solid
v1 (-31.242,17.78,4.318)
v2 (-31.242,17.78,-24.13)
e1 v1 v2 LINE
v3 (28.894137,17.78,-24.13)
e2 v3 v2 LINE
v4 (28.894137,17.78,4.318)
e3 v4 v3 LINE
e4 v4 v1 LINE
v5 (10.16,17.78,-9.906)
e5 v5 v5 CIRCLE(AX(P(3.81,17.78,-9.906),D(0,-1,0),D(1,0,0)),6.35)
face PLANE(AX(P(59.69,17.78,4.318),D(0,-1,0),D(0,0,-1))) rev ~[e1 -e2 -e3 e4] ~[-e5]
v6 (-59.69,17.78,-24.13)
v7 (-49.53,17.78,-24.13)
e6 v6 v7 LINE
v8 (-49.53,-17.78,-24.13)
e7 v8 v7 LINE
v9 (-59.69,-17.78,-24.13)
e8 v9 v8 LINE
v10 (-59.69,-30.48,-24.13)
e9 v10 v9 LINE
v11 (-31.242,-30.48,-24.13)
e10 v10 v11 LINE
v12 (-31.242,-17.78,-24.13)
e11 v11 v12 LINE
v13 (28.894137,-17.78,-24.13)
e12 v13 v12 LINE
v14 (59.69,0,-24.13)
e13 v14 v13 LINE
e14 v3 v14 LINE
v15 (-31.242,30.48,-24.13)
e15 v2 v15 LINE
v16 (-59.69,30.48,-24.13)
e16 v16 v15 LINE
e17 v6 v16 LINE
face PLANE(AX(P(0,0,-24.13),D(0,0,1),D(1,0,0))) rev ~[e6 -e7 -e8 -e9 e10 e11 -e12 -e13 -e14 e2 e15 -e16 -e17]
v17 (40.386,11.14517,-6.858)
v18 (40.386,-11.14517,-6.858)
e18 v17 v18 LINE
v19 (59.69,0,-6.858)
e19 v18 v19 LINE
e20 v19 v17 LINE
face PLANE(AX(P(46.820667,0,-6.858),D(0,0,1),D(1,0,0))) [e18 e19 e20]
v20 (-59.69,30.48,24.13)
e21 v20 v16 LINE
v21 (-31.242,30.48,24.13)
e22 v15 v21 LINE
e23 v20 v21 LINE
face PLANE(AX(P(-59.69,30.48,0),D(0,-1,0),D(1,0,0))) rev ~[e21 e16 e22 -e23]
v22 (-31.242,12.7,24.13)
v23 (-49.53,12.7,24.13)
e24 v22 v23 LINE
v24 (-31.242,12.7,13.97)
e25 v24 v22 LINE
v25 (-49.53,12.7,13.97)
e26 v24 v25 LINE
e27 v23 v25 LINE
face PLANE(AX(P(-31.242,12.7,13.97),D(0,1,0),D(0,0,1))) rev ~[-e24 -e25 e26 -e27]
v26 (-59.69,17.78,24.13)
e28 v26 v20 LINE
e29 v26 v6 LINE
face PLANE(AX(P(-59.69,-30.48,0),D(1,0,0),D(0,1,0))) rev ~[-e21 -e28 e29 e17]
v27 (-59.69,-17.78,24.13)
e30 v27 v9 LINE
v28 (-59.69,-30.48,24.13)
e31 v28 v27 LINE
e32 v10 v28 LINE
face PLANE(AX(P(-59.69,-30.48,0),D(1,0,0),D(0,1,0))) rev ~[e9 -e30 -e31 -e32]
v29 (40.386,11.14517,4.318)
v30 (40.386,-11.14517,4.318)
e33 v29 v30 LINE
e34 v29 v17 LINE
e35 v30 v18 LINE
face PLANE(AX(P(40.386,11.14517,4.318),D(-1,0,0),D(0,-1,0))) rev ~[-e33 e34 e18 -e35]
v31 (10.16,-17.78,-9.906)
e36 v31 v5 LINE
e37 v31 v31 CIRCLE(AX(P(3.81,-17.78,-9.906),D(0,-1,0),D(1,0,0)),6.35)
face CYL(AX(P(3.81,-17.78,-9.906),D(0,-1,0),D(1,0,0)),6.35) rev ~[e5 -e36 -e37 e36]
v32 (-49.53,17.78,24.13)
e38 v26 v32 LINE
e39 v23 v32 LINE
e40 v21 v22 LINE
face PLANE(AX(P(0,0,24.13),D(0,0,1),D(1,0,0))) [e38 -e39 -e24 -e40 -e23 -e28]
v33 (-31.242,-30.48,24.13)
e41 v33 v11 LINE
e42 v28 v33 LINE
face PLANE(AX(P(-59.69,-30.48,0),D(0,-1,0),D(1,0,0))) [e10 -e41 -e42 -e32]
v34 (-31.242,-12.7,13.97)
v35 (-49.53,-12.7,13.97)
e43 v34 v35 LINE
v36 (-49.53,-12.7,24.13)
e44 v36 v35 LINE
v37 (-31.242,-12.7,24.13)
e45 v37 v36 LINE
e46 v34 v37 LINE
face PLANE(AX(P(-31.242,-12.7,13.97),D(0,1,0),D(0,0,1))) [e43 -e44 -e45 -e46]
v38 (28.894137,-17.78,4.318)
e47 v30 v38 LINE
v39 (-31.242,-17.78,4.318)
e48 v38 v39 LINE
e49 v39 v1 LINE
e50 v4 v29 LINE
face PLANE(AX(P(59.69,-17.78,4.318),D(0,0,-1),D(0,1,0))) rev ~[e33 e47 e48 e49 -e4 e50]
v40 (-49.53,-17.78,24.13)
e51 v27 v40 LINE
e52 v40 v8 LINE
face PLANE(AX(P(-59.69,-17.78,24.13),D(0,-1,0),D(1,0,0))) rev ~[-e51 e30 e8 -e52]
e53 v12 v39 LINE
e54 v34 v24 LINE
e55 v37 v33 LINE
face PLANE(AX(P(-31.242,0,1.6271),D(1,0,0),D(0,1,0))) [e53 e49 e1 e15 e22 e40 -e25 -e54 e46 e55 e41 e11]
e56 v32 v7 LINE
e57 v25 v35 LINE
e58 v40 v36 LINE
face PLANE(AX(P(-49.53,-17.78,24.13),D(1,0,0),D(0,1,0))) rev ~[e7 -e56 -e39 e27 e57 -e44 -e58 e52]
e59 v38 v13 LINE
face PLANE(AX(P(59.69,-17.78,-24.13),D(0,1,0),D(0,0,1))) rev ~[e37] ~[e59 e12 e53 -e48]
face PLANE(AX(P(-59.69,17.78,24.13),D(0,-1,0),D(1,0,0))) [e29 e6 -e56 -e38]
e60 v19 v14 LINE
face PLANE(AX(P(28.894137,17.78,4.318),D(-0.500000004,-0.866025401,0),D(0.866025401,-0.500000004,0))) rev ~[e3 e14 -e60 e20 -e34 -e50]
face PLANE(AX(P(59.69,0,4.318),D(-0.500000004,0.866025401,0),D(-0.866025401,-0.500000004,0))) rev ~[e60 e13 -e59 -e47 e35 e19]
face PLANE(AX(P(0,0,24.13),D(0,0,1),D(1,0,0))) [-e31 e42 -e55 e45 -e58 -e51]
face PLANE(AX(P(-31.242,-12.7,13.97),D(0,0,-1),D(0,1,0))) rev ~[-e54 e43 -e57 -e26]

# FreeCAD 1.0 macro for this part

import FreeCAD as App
import Part
import Sketcher
from FreeCAD import Vector
Q = App.Units.Quantity

doc = App.newDocument("Part")
params = doc.addObject("Spreadsheet::Sheet", "Params")
for row, (alias, value) in enumerate([
    ("sketch1_width", "4.7 in"),
    ("sketch1_height", "2.4 in"),
    ("pad1_length", "1.9 in"),
    ("sketch2_width", "0.5 in"),
    ("sketch2_width2", "1.4 in"),
    ("sketch2_height", "1.9 in"),
    ("sketch2_height2", "1.12 in"),
    ("pocket1_length", "3.58 in"),
    ("sketch3_width", "1 in"),
    ("sketch3_height", "0.4 in"),
    ("pocket2_length", "1.787 in"),
    ("sketch4_width", "0.4 in"),
    ("sketch4_height", "1.4 in"),
    ("pocket3_length", "2.103 in"),
    ("sketch5_height", "0.7 in"),
    ("pocket4_length", "1.37 in"),
    ("pocket5_length", "0.44 in"),
    ("sketch7_diameter", "0.5 in"),
    ("pocket6_length", "2.29 in"),
], start=1):
    params.set(f"A{row}", alias)
    params.set(f"B{row}", "=" + value)
    params.setAlias(f"B{row}", alias)

body = doc.addObject("PartDesign::Body", "Body")

# Sketch on XY plane
sketch1 = doc.addObject("Sketcher::SketchObject", "Sketch")
body.addObject(sketch1)
sketch1.AttachmentSupport = (doc.XY_Plane, [""])
sketch1.MapMode = "FlatFace"
sketch1.addGeometry([
    Part.LineSegment(Vector(-60, 30, 0), Vector(-60, -30, 0)),
    Part.LineSegment(Vector(-60, -30, 0), Vector(60, -30, 0)),
    Part.LineSegment(Vector(60, -30, 0), Vector(60, 30, 0)),
    Part.LineSegment(Vector(60, 30, 0), Vector(-60, 30, 0)),
], False)
sketch1.addConstraint([
    Sketcher.Constraint("Coincident", 0, 2, 1, 1),
    Sketcher.Constraint("Coincident", 1, 2, 2, 1),
    Sketcher.Constraint("Coincident", 2, 2, 3, 1),
    Sketcher.Constraint("Coincident", 3, 2, 0, 1),
    Sketcher.Constraint("Vertical", 0),
    Sketcher.Constraint("Horizontal", 1),
    Sketcher.Constraint("Vertical", 2),
    Sketcher.Constraint("Horizontal", 3),
    Sketcher.Constraint("Symmetric", 0, 2, 2, 2, -1, 1),
    Sketcher.Constraint("DistanceX", 1, 1, 1, 2, Q("4.7 in")),
    Sketcher.Constraint("DistanceY", 0, 2, 0, 1, Q("2.4 in")),
])
sketch1.setExpression("Constraints[9]", "Params.sketch1_width")
sketch1.setExpression("Constraints[10]", "Params.sketch1_height")
pad1 = doc.addObject("PartDesign::Pad", "Pad")
body.addObject(pad1)
pad1.Profile = sketch1
pad1.setExpression("Length", "Params.pad1_length")
pad1.Midplane = True

# Sketch on YZ plane
sketch2 = doc.addObject("Sketcher::SketchObject", "Sketch001")
body.addObject(sketch2)
sketch2.AttachmentSupport = (doc.YZ_Plane, [""])
sketch2.MapMode = "FlatFace"
sketch2.AttachmentOffset = App.Placement(Vector(0, 0, 2.35 * 25.4), App.Rotation())
sketch2.addGeometry([
    Part.LineSegment(Vector(-30, -24, 0), Vector(-18, -24, 0)),  # 0
    Part.LineSegment(Vector(-18, -24, 0), Vector(-18, 4, 0)),  # 1
    Part.LineSegment(Vector(-18, 4, 0), Vector(18, 4, 0)),  # 2
    Part.LineSegment(Vector(18, 4, 0), Vector(18, -24, 0)),  # 3
    Part.LineSegment(Vector(18, -24, 0), Vector(30, -24, 0)),  # 4
    Part.LineSegment(Vector(30, -24, 0), Vector(30, 24, 0)),  # 5
    Part.LineSegment(Vector(30, 24, 0), Vector(-30, 24, 0)),  # 6
    Part.LineSegment(Vector(-30, 24, 0), Vector(-30, -24, 0)),  # 7
], False)
sketch2.addConstraint([
    Sketcher.Constraint("Coincident", 0, 2, 1, 1),
    Sketcher.Constraint("Coincident", 1, 2, 2, 1),
    Sketcher.Constraint("Coincident", 2, 2, 3, 1),
    Sketcher.Constraint("Coincident", 3, 2, 4, 1),
    Sketcher.Constraint("Coincident", 4, 2, 5, 1),
    Sketcher.Constraint("Coincident", 5, 2, 6, 1),
    Sketcher.Constraint("Coincident", 6, 2, 7, 1),
    Sketcher.Constraint("Coincident", 7, 2, 0, 1),
    Sketcher.Constraint("Horizontal", 0),
    Sketcher.Constraint("Vertical", 1),
    Sketcher.Constraint("Horizontal", 2),
    Sketcher.Constraint("Vertical", 3),
    Sketcher.Constraint("Horizontal", 4),
    Sketcher.Constraint("Vertical", 5),
    Sketcher.Constraint("Horizontal", 6),
    Sketcher.Constraint("Vertical", 7),
    Sketcher.Constraint("Symmetric", 4, 2, 6, 2, -1, 1),
    Sketcher.Constraint("Symmetric", 0, 2, 3, 2, -2),
    Sketcher.Constraint("DistanceX", 0, 1, 0, 2, Q("0.5 in")),
    Sketcher.Constraint("DistanceX", 2, 1, 2, 2, Q("1.4 in")),
    Sketcher.Constraint("DistanceY", 5, 1, 5, 2, Q("1.9 in")),
    Sketcher.Constraint("DistanceY", 1, 1, 1, 2, Q("1.12 in")),
])
sketch2.setExpression("Constraints[18]", "Params.sketch2_width")
sketch2.setExpression("Constraints[19]", "Params.sketch2_width2")
sketch2.setExpression("Constraints[20]", "Params.sketch2_height")
sketch2.setExpression("Constraints[21]", "Params.sketch2_height2")
pocket1 = doc.addObject("PartDesign::Pocket", "Pocket")
body.addObject(pocket1)
pocket1.Profile = sketch2
pocket1.setExpression("Length", "Params.pocket1_length")

# Sketch on YZ plane
sketch3 = doc.addObject("Sketcher::SketchObject", "Sketch002")
body.addObject(sketch3)
sketch3.AttachmentSupport = (doc.YZ_Plane, [""])
sketch3.MapMode = "FlatFace"
sketch3.AttachmentOffset = App.Placement(Vector(0, 0, -1.23 * 25.4), App.Rotation())
sketch3.addGeometry([
    Part.LineSegment(Vector(-13, 24, 0), Vector(-13, 14, 0)),
    Part.LineSegment(Vector(-13, 14, 0), Vector(13, 14, 0)),
    Part.LineSegment(Vector(13, 14, 0), Vector(13, 24, 0)),
    Part.LineSegment(Vector(13, 24, 0), Vector(-13, 24, 0)),
], False)
sketch3.addConstraint([
    Sketcher.Constraint("Coincident", 0, 2, 1, 1),
    Sketcher.Constraint("Coincident", 1, 2, 2, 1),
    Sketcher.Constraint("Coincident", 2, 2, 3, 1),
    Sketcher.Constraint("Coincident", 3, 2, 0, 1),
    Sketcher.Constraint("Vertical", 0),
    Sketcher.Constraint("Horizontal", 1),
    Sketcher.Constraint("Vertical", 2),
    Sketcher.Constraint("Horizontal", 3),
    Sketcher.Constraint("DistanceX", 1, 1, 1, 2, Q("1 in")),
    Sketcher.Constraint("DistanceY", 0, 2, 0, 1, Q("0.4 in")),
    Sketcher.Constraint("DistanceX", 0, 2, -1, 1, Q("0.5 in")),
    Sketcher.Constraint("DistanceY", -1, 1, 0, 2, Q("0.55 in")),
])
sketch3.setExpression("Constraints[8]", "Params.sketch3_width")
sketch3.setExpression("Constraints[9]", "Params.sketch3_height")
pocket2 = doc.addObject("PartDesign::Pocket", "Pocket001")
body.addObject(pocket2)
pocket2.Profile = sketch3
pocket2.setExpression("Length", "Params.pocket2_length")

# Sketch on XY plane
sketch4 = doc.addObject("Sketcher::SketchObject", "Sketch003")
body.addObject(sketch4)
sketch4.AttachmentSupport = (doc.XY_Plane, [""])
sketch4.MapMode = "FlatFace"
sketch4.AttachmentOffset = App.Placement(Vector(0, 0, 0.95 * 25.4), App.Rotation())
sketch4.addGeometry([
    Part.LineSegment(Vector(-60, 18, 0), Vector(-60, -18, 0)),
    Part.LineSegment(Vector(-60, -18, 0), Vector(-50, -18, 0)),
    Part.LineSegment(Vector(-50, -18, 0), Vector(-50, 18, 0)),
    Part.LineSegment(Vector(-50, 18, 0), Vector(-60, 18, 0)),
], False)
sketch4.addConstraint([
    Sketcher.Constraint("Coincident", 0, 2, 1, 1),
    Sketcher.Constraint("Coincident", 1, 2, 2, 1),
    Sketcher.Constraint("Coincident", 2, 2, 3, 1),
    Sketcher.Constraint("Coincident", 3, 2, 0, 1),
    Sketcher.Constraint("Vertical", 0),
    Sketcher.Constraint("Horizontal", 1),
    Sketcher.Constraint("Vertical", 2),
    Sketcher.Constraint("Horizontal", 3),
    Sketcher.Constraint("DistanceX", 1, 1, 1, 2, Q("0.4 in")),
    Sketcher.Constraint("DistanceY", 0, 2, 0, 1, Q("1.4 in")),
    Sketcher.Constraint("DistanceY", 0, 2, -1, 1, Q("0.7 in")),
    Sketcher.Constraint("DistanceX", 0, 2, -1, 1, Q("2.35 in")),
])
sketch4.setExpression("Constraints[8]", "Params.sketch4_width")
sketch4.setExpression("Constraints[9]", "Params.sketch4_height")
pocket3 = doc.addObject("PartDesign::Pocket", "Pocket002")
body.addObject(pocket3)
pocket3.Profile = sketch4
pocket3.setExpression("Length", "Params.pocket3_length")

# Sketch on XY plane
sketch5 = doc.addObject("Sketcher::SketchObject", "Sketch004")
body.addObject(sketch5)
sketch5.AttachmentSupport = (doc.XY_Plane, [""])
sketch5.MapMode = "FlatFace"
sketch5.AttachmentOffset = App.Placement(Vector(0, 0, 0.17 * 25.4), App.Rotation())
sketch5.addGeometry([
    Part.LineSegment(Vector(29, 18, 0), Vector(60, 0, 0)),  # 0
    Part.LineSegment(Vector(60, 0, 0), Vector(60, 18, 0)),  # 1
    Part.LineSegment(Vector(60, 18, 0), Vector(29, 18, 0)),  # 2
    Part.LineSegment(Vector(60, -18, 0), Vector(60, 0, 0)),  # 3
    Part.LineSegment(Vector(60, 0, 0), Vector(29, -18, 0)),  # 4
    Part.LineSegment(Vector(29, -18, 0), Vector(60, -18, 0)),  # 5
], False)
sketch5.addConstraint([
    Sketcher.Constraint("Coincident", 0, 2, 1, 1),
    Sketcher.Constraint("Coincident", 1, 2, 2, 1),
    Sketcher.Constraint("Coincident", 2, 2, 0, 1),
    Sketcher.Constraint("Coincident", 3, 2, 4, 1),
    Sketcher.Constraint("Coincident", 4, 2, 5, 1),
    Sketcher.Constraint("Coincident", 5, 2, 3, 1),
    Sketcher.Constraint("Vertical", 1),
    Sketcher.Constraint("Horizontal", 2),
    Sketcher.Constraint("Vertical", 3),
    Sketcher.Constraint("Horizontal", 5),
    Sketcher.Constraint("Coincident", 3, 2, 0, 2),
    Sketcher.Constraint("Symmetric", 2, 2, 4, 2, -1),
    Sketcher.Constraint("PointOnObject", 0, 2, -1),
    Sketcher.Constraint("DistanceY", 1, 1, 1, 2, Q("0.7 in")),
    Sketcher.Constraint("Angle", 0, Q("-30 deg")),
    Sketcher.Constraint("DistanceX", -1, 1, 0, 2, Q("2.35 in")),
])
sketch5.setExpression("Constraints[13]", "Params.sketch5_height")
pocket4 = doc.addObject("PartDesign::Pocket", "Pocket003")
body.addObject(pocket4)
pocket4.Profile = sketch5
pocket4.setExpression("Length", "Params.pocket4_length")

# Sketch on XY plane
sketch6 = doc.addObject("Sketcher::SketchObject", "Sketch005")
body.addObject(sketch6)
sketch6.AttachmentSupport = (doc.XY_Plane, [""])
sketch6.MapMode = "FlatFace"
sketch6.AttachmentOffset = App.Placement(Vector(0, 0, 0.17 * 25.4), App.Rotation())
sketch6.addGeometry([
    Part.LineSegment(Vector(40, 11, 0), Vector(40, -11, 0)),
    Part.LineSegment(Vector(40, -11, 0), Vector(60, 0, 0)),
    Part.LineSegment(Vector(60, 0, 0), Vector(40, 11, 0)),
], False)
sketch6.addConstraint([
    Sketcher.Constraint("Coincident", 0, 2, 1, 1),
    Sketcher.Constraint("Coincident", 1, 2, 2, 1),
    Sketcher.Constraint("Coincident", 2, 2, 0, 1),
    Sketcher.Constraint("Vertical", 0),
    Sketcher.Constraint("PointOnObject", 1, 2, -1),
    Sketcher.Constraint("Equal", 1, 2),
    Sketcher.Constraint("Angle", 1, Q("30.000001 deg")),
    Sketcher.Constraint("DistanceX", -1, 1, 0, 2, Q("1.59 in")),
    Sketcher.Constraint("DistanceX", -1, 1, 1, 2, Q("2.35 in")),
])
pocket5 = doc.addObject("PartDesign::Pocket", "Pocket004")
body.addObject(pocket5)
pocket5.Profile = sketch6
pocket5.setExpression("Length", "Params.pocket5_length")

# Sketch on XZ plane
sketch7 = doc.addObject("Sketcher::SketchObject", "Sketch006")
body.addObject(sketch7)
sketch7.AttachmentSupport = (doc.XZ_Plane, [""])
sketch7.MapMode = "FlatFace"
sketch7.AttachmentOffset = App.Placement(Vector(0, 0, 0.7 * 25.4), App.Rotation())
sketch7.addGeometry(Part.Circle(Vector(4, -10, 0), Vector(0, 0, 1), 6), False)
sketch7.addConstraint([
    Sketcher.Constraint("Diameter", 0, Q("0.5 in")),
    Sketcher.Constraint("DistanceX", -1, 1, 0, 3, Q("0.15 in")),
    Sketcher.Constraint("DistanceY", 0, 3, -1, 1, Q("0.39 in")),
])
sketch7.setExpression("Constraints[0]", "Params.sketch7_diameter")
pocket6 = doc.addObject("PartDesign::Pocket", "Pocket005")
body.addObject(pocket6)
pocket6.Profile = sketch7
pocket6.setExpression("Length", "Params.pocket6_length")

doc.recompute()
